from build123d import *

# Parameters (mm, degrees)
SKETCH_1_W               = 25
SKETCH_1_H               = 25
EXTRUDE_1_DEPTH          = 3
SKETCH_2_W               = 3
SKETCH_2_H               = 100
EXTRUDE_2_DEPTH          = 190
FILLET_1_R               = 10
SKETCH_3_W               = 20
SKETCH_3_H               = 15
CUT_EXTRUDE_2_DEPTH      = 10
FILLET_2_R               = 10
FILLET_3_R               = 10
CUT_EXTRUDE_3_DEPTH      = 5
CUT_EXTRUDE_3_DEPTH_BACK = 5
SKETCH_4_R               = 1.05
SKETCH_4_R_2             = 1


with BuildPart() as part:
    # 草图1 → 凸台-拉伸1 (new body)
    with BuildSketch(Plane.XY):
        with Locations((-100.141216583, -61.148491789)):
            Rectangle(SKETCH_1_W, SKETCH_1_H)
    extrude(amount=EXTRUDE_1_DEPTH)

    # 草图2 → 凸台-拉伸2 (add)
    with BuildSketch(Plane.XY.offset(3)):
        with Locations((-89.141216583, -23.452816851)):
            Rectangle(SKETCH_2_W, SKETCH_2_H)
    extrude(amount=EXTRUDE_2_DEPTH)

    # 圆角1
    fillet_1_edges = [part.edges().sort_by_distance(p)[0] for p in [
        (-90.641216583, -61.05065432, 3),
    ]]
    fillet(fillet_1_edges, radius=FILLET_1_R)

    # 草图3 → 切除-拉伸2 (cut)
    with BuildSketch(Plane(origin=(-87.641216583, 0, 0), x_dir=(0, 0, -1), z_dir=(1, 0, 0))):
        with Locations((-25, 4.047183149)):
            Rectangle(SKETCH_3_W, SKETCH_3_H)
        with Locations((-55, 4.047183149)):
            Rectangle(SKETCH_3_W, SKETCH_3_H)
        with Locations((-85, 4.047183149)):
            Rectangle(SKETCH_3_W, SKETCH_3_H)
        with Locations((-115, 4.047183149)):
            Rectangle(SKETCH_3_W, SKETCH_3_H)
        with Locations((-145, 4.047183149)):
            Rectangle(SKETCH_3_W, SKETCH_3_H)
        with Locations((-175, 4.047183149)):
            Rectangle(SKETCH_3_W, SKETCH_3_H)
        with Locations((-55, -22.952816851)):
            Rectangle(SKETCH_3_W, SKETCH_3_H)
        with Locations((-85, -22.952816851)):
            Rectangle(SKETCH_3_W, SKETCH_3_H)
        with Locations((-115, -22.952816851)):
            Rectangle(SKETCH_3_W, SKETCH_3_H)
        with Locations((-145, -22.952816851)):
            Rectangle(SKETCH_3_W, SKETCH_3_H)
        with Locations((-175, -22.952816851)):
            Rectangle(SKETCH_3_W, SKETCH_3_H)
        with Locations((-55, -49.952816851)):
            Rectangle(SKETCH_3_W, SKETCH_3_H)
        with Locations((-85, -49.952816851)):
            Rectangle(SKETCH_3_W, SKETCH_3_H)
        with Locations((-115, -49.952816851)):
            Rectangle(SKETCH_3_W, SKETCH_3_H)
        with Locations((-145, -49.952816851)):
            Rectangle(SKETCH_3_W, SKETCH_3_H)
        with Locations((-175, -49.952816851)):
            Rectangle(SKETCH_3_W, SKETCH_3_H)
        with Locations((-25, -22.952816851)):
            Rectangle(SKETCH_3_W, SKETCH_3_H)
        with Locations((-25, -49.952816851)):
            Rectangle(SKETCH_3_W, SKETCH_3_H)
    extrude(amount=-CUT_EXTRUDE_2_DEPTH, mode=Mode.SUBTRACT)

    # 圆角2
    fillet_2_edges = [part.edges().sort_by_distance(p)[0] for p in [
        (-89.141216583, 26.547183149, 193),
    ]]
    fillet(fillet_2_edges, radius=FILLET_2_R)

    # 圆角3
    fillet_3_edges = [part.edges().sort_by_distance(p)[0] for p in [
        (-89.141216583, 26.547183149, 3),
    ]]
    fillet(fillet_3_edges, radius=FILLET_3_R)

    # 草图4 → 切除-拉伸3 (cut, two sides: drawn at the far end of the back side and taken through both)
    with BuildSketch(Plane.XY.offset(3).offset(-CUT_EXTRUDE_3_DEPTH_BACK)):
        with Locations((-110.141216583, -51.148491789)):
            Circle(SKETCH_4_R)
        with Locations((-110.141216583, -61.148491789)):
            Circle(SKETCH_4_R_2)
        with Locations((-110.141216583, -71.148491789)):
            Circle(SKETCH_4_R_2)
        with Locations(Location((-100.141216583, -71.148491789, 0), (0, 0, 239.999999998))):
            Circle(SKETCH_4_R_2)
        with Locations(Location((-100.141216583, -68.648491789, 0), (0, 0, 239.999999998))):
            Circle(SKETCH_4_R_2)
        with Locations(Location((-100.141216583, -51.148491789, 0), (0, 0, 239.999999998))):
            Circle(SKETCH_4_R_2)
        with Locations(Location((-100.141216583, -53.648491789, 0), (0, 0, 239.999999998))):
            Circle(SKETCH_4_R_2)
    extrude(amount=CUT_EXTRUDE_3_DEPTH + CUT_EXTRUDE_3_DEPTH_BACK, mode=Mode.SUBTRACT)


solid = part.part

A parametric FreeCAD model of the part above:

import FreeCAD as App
import Part
import Sketcher

V = App.Vector
Q = App.Units.Quantity


def edges_at(feature, points):
    """Names of the edges that pass closest to the given points."""
    edges = feature.Shape.Edges
    near = lambda p: min(range(len(edges)), key=lambda i: edges[i].distToShape(Part.Vertex(*p))[0])
    return sorted({f"Edge{near(p) + 1}" for p in points})

doc = App.newDocument("Part")
body = doc.addObject("PartDesign::Body", "Body")

sketch1 = body.newObject("Sketcher::SketchObject", "Sketch")
sketch1.AttachmentSupport = (doc.getObject("XY_Plane"), [""])
sketch1.MapMode = "FlatFace"
sketch1.addGeometry([
    Part.LineSegment(V(-113, -49, 0), V(-113, -74, 0)),
    Part.LineSegment(V(-113, -74, 0), V(-88, -74, 0)),
    Part.LineSegment(V(-88, -74, 0), V(-88, -49, 0)),
    Part.LineSegment(V(-88, -49, 0), V(-113, -49, 0)),
], False)
sketch1.addConstraint([
    Sketcher.Constraint("Coincident", 0, 2, 1, 1),
    Sketcher.Constraint("Coincident", 1, 2, 2, 1),
    Sketcher.Constraint("Coincident", 2, 2, 3, 1),
    Sketcher.Constraint("Coincident", 3, 2, 0, 1),
    Sketcher.Constraint("Vertical", 0),
    Sketcher.Constraint("Horizontal", 1),
    Sketcher.Constraint("Vertical", 2),
    Sketcher.Constraint("Horizontal", 3),
    Sketcher.Constraint("Equal", 3, 0),
    Sketcher.Constraint("DistanceX", 1, 1, 1, 2, Q("25 mm")),
    Sketcher.Constraint("DistanceY", 0, 2, -1, 1, Q("73.648492 mm")),
    Sketcher.Constraint("DistanceX", 0, 2, -1, 1, Q("112.641217 mm")),
])
pad1 = body.newObject("PartDesign::Pad", "Pad")
pad1.Profile = sketch1
pad1.Length = 3

sketch2 = body.newObject("Sketcher::SketchObject", "Sketch001")
sketch2.AttachmentSupport = (doc.getObject("XY_Plane"), [""])
sketch2.MapMode = "FlatFace"
sketch2.AttachmentOffset = App.Placement(V(0, 0, 3), App.Rotation())
sketch2.addGeometry([
    Part.LineSegment(V(-90.6, 26.5, 0), V(-90.6, -73.5, 0)),
    Part.LineSegment(V(-90.6, -73.5, 0), V(-87.6, -73.5, 0)),
    Part.LineSegment(V(-87.6, -73.5, 0), V(-87.6, 26.5, 0)),
    Part.LineSegment(V(-87.6, 26.5, 0), V(-90.6, 26.5, 0)),
], False)
sketch2.addConstraint([
    Sketcher.Constraint("Coincident", 0, 2, 1, 1),
    Sketcher.Constraint("Coincident", 1, 2, 2, 1),
    Sketcher.Constraint("Coincident", 2, 2, 3, 1),
    Sketcher.Constraint("Coincident", 3, 2, 0, 1),
    Sketcher.Constraint("Vertical", 0),
    Sketcher.Constraint("Horizontal", 1),
    Sketcher.Constraint("Vertical", 2),
    Sketcher.Constraint("Horizontal", 3),
    Sketcher.Constraint("DistanceX", 1, 1, 1, 2, Q("3 mm")),
    Sketcher.Constraint("DistanceY", 0, 2, 0, 1, Q("100 mm")),
    Sketcher.Constraint("DistanceX", 0, 2, -1, 1, Q("90.641217 mm")),
    Sketcher.Constraint("DistanceY", 0, 2, -1, 1, Q("73.452817 mm")),
])
pad2 = body.newObject("PartDesign::Pad", "Pad001")
pad2.Profile = sketch2
pad2.Length = 190
doc.recompute()

fillet = body.newObject("PartDesign::Fillet", "Fillet")
fillet.Base = (pad2, edges_at(pad2, [(-90.641, -61.051, 3)]))
fillet.Radius = 10

sketch3 = body.newObject("Sketcher::SketchObject", "Sketch002")
sketch3.AttachmentSupport = (doc.getObject("YZ_Plane"), [""])
sketch3.MapMode = "FlatFace"
sketch3.AttachmentOffset = App.Placement(V(0, 0, -87.641217), App.Rotation())
sketch3.addGeometry([
    Part.LineSegment(V(12, 35, 0), V(-3, 35, 0)),
    Part.LineSegment(V(-3, 35, 0), V(-3, 15, 0)),
    Part.LineSegment(V(-3, 15, 0), V(12, 15, 0)),
    Part.LineSegment(V(12, 15, 0), V(12, 35, 0)),
    Part.LineSegment(V(12, 65, 0), V(-3, 65, 0)),
    Part.LineSegment(V(-3, 65, 0), V(-3, 45, 0)),
    Part.LineSegment(V(-3, 45, 0), V(12, 45, 0)),
    Part.LineSegment(V(12, 45, 0), V(12, 65, 0)),
    Part.LineSegment(V(12, 95, 0), V(-3, 95, 0)),
    Part.LineSegment(V(-3, 95, 0), V(-3, 75, 0)),
    Part.LineSegment(V(-3, 75, 0), V(12, 75, 0)),
    Part.LineSegment(V(12, 75, 0), V(12, 95, 0)),
    Part.LineSegment(V(12, 125, 0), V(-3, 125, 0)),
    Part.LineSegment(V(-3, 125, 0), V(-3, 105, 0)),
    Part.LineSegment(V(-3, 105, 0), V(12, 105, 0)),
    Part.LineSegment(V(12, 105, 0), V(12, 125, 0)),
    Part.LineSegment(V(12, 155, 0), V(-3, 155, 0)),
    Part.LineSegment(V(-3, 155, 0), V(-3, 135, 0)),
    Part.LineSegment(V(-3, 135, 0), V(12, 135, 0)),
    Part.LineSegment(V(12, 135, 0), V(12, 155, 0)),
    Part.LineSegment(V(12, 185, 0), V(-3, 185, 0)),
    Part.LineSegment(V(-3, 185, 0), V(-3, 165, 0)),
    Part.LineSegment(V(-3, 165, 0), V(12, 165, 0)),
    Part.LineSegment(V(12, 165, 0), V(12, 185, 0)),
    Part.LineSegment(V(-15, 65, 0), V(-30, 65, 0)),
    Part.LineSegment(V(-30, 65, 0), V(-30, 45, 0)),
    Part.LineSegment(V(-30, 45, 0), V(-15, 45, 0)),
    Part.LineSegment(V(-15, 45, 0), V(-15, 65, 0)),
    Part.LineSegment(V(-15, 95, 0), V(-30, 95, 0)),
    Part.LineSegment(V(-30, 95, 0), V(-30, 75, 0)),
    Part.LineSegment(V(-30, 75, 0), V(-15, 75, 0)),
    Part.LineSegment(V(-15, 75, 0), V(-15, 95, 0)),
    Part.LineSegment(V(-15, 125, 0), V(-30, 125, 0)),
    Part.LineSegment(V(-30, 125, 0), V(-30, 105, 0)),
    Part.LineSegment(V(-30, 105, 0), V(-15, 105, 0)),
    Part.LineSegment(V(-15, 105, 0), V(-15, 125, 0)),
    Part.LineSegment(V(-15, 155, 0), V(-30, 155, 0)),
    Part.LineSegment(V(-30, 155, 0), V(-30, 135, 0)),
    Part.LineSegment(V(-30, 135, 0), V(-15, 135, 0)),
    Part.LineSegment(V(-15, 135, 0), V(-15, 155, 0)),
    Part.LineSegment(V(-15, 185, 0), V(-30, 185, 0)),
    Part.LineSegment(V(-30, 185, 0), V(-30, 165, 0)),
    Part.LineSegment(V(-30, 165, 0), V(-15, 165, 0)),
    Part.LineSegment(V(-15, 165, 0), V(-15, 185, 0)),
    Part.LineSegment(V(-42, 65, 0), V(-57, 65, 0)),
    Part.LineSegment(V(-57, 65, 0), V(-57, 45, 0)),
    Part.LineSegment(V(-57, 45, 0), V(-42, 45, 0)),
    Part.LineSegment(V(-42, 45, 0), V(-42, 65, 0)),
    Part.LineSegment(V(-42, 95, 0), V(-57, 95, 0)),
    Part.LineSegment(V(-57, 95, 0), V(-57, 75, 0)),
    Part.LineSegment(V(-57, 75, 0), V(-42, 75, 0)),
    Part.LineSegment(V(-42, 75, 0), V(-42, 95, 0)),
    Part.LineSegment(V(-42, 125, 0), V(-57, 125, 0)),
    Part.LineSegment(V(-57, 125, 0), V(-57, 105, 0)),
    Part.LineSegment(V(-57, 105, 0), V(-42, 105, 0)),
    Part.LineSegment(V(-42, 105, 0), V(-42, 125, 0)),
    Part.LineSegment(V(-42, 155, 0), V(-57, 155, 0)),
    Part.LineSegment(V(-57, 155, 0), V(-57, 135, 0)),
    Part.LineSegment(V(-57, 135, 0), V(-42, 135, 0)),
    Part.LineSegment(V(-42, 135, 0), V(-42, 155, 0)),
    Part.LineSegment(V(-42, 185, 0), V(-57, 185, 0)),
    Part.LineSegment(V(-57, 185, 0), V(-57, 165, 0)),
    Part.LineSegment(V(-57, 165, 0), V(-42, 165, 0)),
    Part.LineSegment(V(-42, 165, 0), V(-42, 185, 0)),
    Part.LineSegment(V(-15, 35, 0), V(-30, 35, 0)),
    Part.LineSegment(V(-30, 35, 0), V(-30, 15, 0)),
    Part.LineSegment(V(-30, 15, 0), V(-15, 15, 0)),
    Part.LineSegment(V(-15, 15, 0), V(-15, 35, 0)),
    Part.LineSegment(V(-42, 35, 0), V(-57, 35, 0)),
    Part.LineSegment(V(-57, 35, 0), V(-57, 15, 0)),
    Part.LineSegment(V(-57, 15, 0), V(-42, 15, 0)),
    Part.LineSegment(V(-42, 15, 0), V(-42, 35, 0)),
], False)
sketch3.addConstraint([
    Sketcher.Constraint("Coincident", 0, 2, 1, 1),
    Sketcher.Constraint("Coincident", 1, 2, 2, 1),
    Sketcher.Constraint("Coincident", 2, 2, 3, 1),
    Sketcher.Constraint("Coincident", 3, 2, 0, 1),
    Sketcher.Constraint("Coincident", 4, 2, 5, 1),
    Sketcher.Constraint("Coincident", 5, 2, 6, 1),
    Sketcher.Constraint("Coincident", 6, 2, 7, 1),
    Sketcher.Constraint("Coincident", 7, 2, 4, 1),
    Sketcher.Constraint("Coincident", 8, 2, 9, 1),
    Sketcher.Constraint("Coincident", 9, 2, 10, 1),
    Sketcher.Constraint("Coincident", 10, 2, 11, 1),
    Sketcher.Constraint("Coincident", 11, 2, 8, 1),
    Sketcher.Constraint("Coincident", 12, 2, 13, 1),
    Sketcher.Constraint("Coincident", 13, 2, 14, 1),
    Sketcher.Constraint("Coincident", 14, 2, 15, 1),
    Sketcher.Constraint("Coincident", 15, 2, 12, 1),
    Sketcher.Constraint("Coincident", 16, 2, 17, 1),
    Sketcher.Constraint("Coincident", 17, 2, 18, 1),
    Sketcher.Constraint("Coincident", 18, 2, 19, 1),
    Sketcher.Constraint("Coincident", 19, 2, 16, 1),
    Sketcher.Constraint("Coincident", 20, 2, 21, 1),
    Sketcher.Constraint("Coincident", 21, 2, 22, 1),
    Sketcher.Constraint("Coincident", 22, 2, 23, 1),
    Sketcher.Constraint("Coincident", 23, 2, 20, 1),
    Sketcher.Constraint("Coincident", 24, 2, 25, 1),
    Sketcher.Constraint("Coincident", 25, 2, 26, 1),
    Sketcher.Constraint("Coincident", 26, 2, 27, 1),
    Sketcher.Constraint("Coincident", 27, 2, 24, 1),
    Sketcher.Constraint("Coincident", 28, 2, 29, 1),
    Sketcher.Constraint("Coincident", 29, 2, 30, 1),
    Sketcher.Constraint("Coincident", 30, 2, 31, 1),
    Sketcher.Constraint("Coincident", 31, 2, 28, 1),
    Sketcher.Constraint("Coincident", 32, 2, 33, 1),
    Sketcher.Constraint("Coincident", 33, 2, 34, 1),
    Sketcher.Constraint("Coincident", 34, 2, 35, 1),
    Sketcher.Constraint("Coincident", 35, 2, 32, 1),
    Sketcher.Constraint("Coincident", 36, 2, 37, 1),
    Sketcher.Constraint("Coincident", 37, 2, 38, 1),
    Sketcher.Constraint("Coincident", 38, 2, 39, 1),
    Sketcher.Constraint("Coincident", 39, 2, 36, 1),
    Sketcher.Constraint("Coincident", 40, 2, 41, 1),
    Sketcher.Constraint("Coincident", 41, 2, 42, 1),
    Sketcher.Constraint("Coincident", 42, 2, 43, 1),
    Sketcher.Constraint("Coincident", 43, 2, 40, 1),
    Sketcher.Constraint("Coincident", 44, 2, 45, 1),
    Sketcher.Constraint("Coincident", 45, 2, 46, 1),
    Sketcher.Constraint("Coincident", 46, 2, 47, 1),
    Sketcher.Constraint("Coincident", 47, 2, 44, 1),
    Sketcher.Constraint("Coincident", 48, 2, 49, 1),
    Sketcher.Constraint("Coincident", 49, 2, 50, 1),
    Sketcher.Constraint("Coincident", 50, 2, 51, 1),
    Sketcher.Constraint("Coincident", 51, 2, 48, 1),
    Sketcher.Constraint("Coincident", 52, 2, 53, 1),
    Sketcher.Constraint("Coincident", 53, 2, 54, 1),
    Sketcher.Constraint("Coincident", 54, 2, 55, 1),
    Sketcher.Constraint("Coincident", 55, 2, 52, 1),
    Sketcher.Constraint("Coincident", 56, 2, 57, 1),
    Sketcher.Constraint("Coincident", 57, 2, 58, 1),
    Sketcher.Constraint("Coincident", 58, 2, 59, 1),
    Sketcher.Constraint("Coincident", 59, 2, 56, 1),
    Sketcher.Constraint("Coincident", 60, 2, 61, 1),
    Sketcher.Constraint("Coincident", 61, 2, 62, 1),
    Sketcher.Constraint("Coincident", 62, 2, 63, 1),
    Sketcher.Constraint("Coincident", 63, 2, 60, 1),
    Sketcher.Constraint("Coincident", 64, 2, 65, 1),
    Sketcher.Constraint("Coincident", 65, 2, 66, 1),
    Sketcher.Constraint("Coincident", 66, 2, 67, 1),
    Sketcher.Constraint("Coincident", 67, 2, 64, 1),
    Sketcher.Constraint("Coincident", 68, 2, 69, 1),
    Sketcher.Constraint("Coincident", 69, 2, 70, 1),
    Sketcher.Constraint("Coincident", 70, 2, 71, 1),
    Sketcher.Constraint("Coincident", 71, 2, 68, 1),
    Sketcher.Constraint("Horizontal", 0),
    Sketcher.Constraint("Vertical", 1),
    Sketcher.Constraint("Horizontal", 2),
    Sketcher.Constraint("Vertical", 3),
    Sketcher.Constraint("Horizontal", 4),
    Sketcher.Constraint("Vertical", 5),
    Sketcher.Constraint("Horizontal", 6),
    Sketcher.Constraint("Vertical", 7),
    Sketcher.Constraint("Horizontal", 8),
    Sketcher.Constraint("Vertical", 9),
    Sketcher.Constraint("Horizontal", 10),
    Sketcher.Constraint("Vertical", 11),
    Sketcher.Constraint("Horizontal", 12),
    Sketcher.Constraint("Vertical", 13),
    Sketcher.Constraint("Horizontal", 14),
    Sketcher.Constraint("Vertical", 15),
    Sketcher.Constraint("Horizontal", 16),
    Sketcher.Constraint("Vertical", 17),
    Sketcher.Constraint("Horizontal", 18),
    Sketcher.Constraint("Vertical", 19),
    Sketcher.Constraint("Horizontal", 20),
    Sketcher.Constraint("Vertical", 21),
    Sketcher.Constraint("Horizontal", 22),
    Sketcher.Constraint("Vertical", 23),
    Sketcher.Constraint("Horizontal", 24),
    Sketcher.Constraint("Vertical", 25),
    Sketcher.Constraint("Horizontal", 26),
    Sketcher.Constraint("Vertical", 27),
    Sketcher.Constraint("Horizontal", 28),
    Sketcher.Constraint("Vertical", 29),
    Sketcher.Constraint("Horizontal", 30),
    Sketcher.Constraint("Vertical", 31),
    Sketcher.Constraint("Horizontal", 32),
    Sketcher.Constraint("Vertical", 33),
    Sketcher.Constraint("Horizontal", 34),
    Sketcher.Constraint("Vertical", 35),
    Sketcher.Constraint("Horizontal", 36),
    Sketcher.Constraint("Vertical", 37),
    Sketcher.Constraint("Horizontal", 38),
    Sketcher.Constraint("Vertical", 39),
    Sketcher.Constraint("Horizontal", 40),
    Sketcher.Constraint("Vertical", 41),
    Sketcher.Constraint("Horizontal", 42),
    Sketcher.Constraint("Vertical", 43),
    Sketcher.Constraint("Horizontal", 44),
    Sketcher.Constraint("Vertical", 45),
    Sketcher.Constraint("Horizontal", 46),
    Sketcher.Constraint("Vertical", 47),
    Sketcher.Constraint("Horizontal", 48),
    Sketcher.Constraint("Vertical", 49),
    Sketcher.Constraint("Horizontal", 50),
    Sketcher.Constraint("Vertical", 51),
    Sketcher.Constraint("Horizontal", 52),
    Sketcher.Constraint("Vertical", 53),
    Sketcher.Constraint("Horizontal", 54),
    Sketcher.Constraint("Vertical", 55),
    Sketcher.Constraint("Horizontal", 56),
    Sketcher.Constraint("Vertical", 57),
    Sketcher.Constraint("Horizontal", 58),
    Sketcher.Constraint("Vertical", 59),
    Sketcher.Constraint("Horizontal", 60),
    Sketcher.Constraint("Vertical", 61),
    Sketcher.Constraint("Horizontal", 62),
    Sketcher.Constraint("Vertical", 63),
    Sketcher.Constraint("Horizontal", 64),
    Sketcher.Constraint("Vertical", 65),
    Sketcher.Constraint("Horizontal", 66),
    Sketcher.Constraint("Vertical", 67),
    Sketcher.Constraint("Horizontal", 68),
    Sketcher.Constraint("Vertical", 69),
    Sketcher.Constraint("Horizontal", 70),
    Sketcher.Constraint("Vertical", 71),
    Sketcher.Constraint("Horizontal", 7, 2, 24, 2),
    Sketcher.Constraint("Horizontal", 6, 2, 25, 2),
    Sketcher.Constraint("Horizontal", 11, 2, 28, 2),
    Sketcher.Constraint("Horizontal", 10, 2, 29, 2),
    Sketcher.Constraint("Horizontal", 15, 2, 32, 2),
    Sketcher.Constraint("Horizontal", 14, 2, 33, 2),
    Sketcher.Constraint("Horizontal", 19, 2, 36, 2),
    Sketcher.Constraint("Horizontal", 18, 2, 37, 2),
    Sketcher.Constraint("Horizontal", 23, 2, 40, 2),
    Sketcher.Constraint("Horizontal", 22, 2, 41, 2),
    Sketcher.Constraint("Horizontal", 27, 2, 44, 2),
    Sketcher.Constraint("Horizontal", 26, 2, 45, 2),
    Sketcher.Constraint("Horizontal", 31, 2, 48, 2),
    Sketcher.Constraint("Horizontal", 30, 2, 49, 2),
    Sketcher.Constraint("Horizontal", 35, 2, 52, 2),
    Sketcher.Constraint("Horizontal", 34, 2, 53, 2),
    Sketcher.Constraint("Horizontal", 39, 2, 56, 2),
    Sketcher.Constraint("Horizontal", 38, 2, 57, 2),
    Sketcher.Constraint("Horizontal", 43, 2, 60, 2),
    Sketcher.Constraint("Horizontal", 42, 2, 61, 2),
    Sketcher.Constraint("Horizontal", 3, 2, 64, 2),
    Sketcher.Constraint("Horizontal", 2, 2, 65, 2),
    Sketcher.Constraint("Horizontal", 67, 2, 68, 2),
    Sketcher.Constraint("Horizontal", 66, 2, 69, 2),
    Sketcher.Constraint("Vertical", 1, 2, 4, 2),
    Sketcher.Constraint("Vertical", 3, 2, 6, 2),
    Sketcher.Constraint("Vertical", 5, 2, 8, 2),
    Sketcher.Constraint("Vertical", 7, 2, 10, 2),
    Sketcher.Constraint("Vertical", 9, 2, 12, 2),
    Sketcher.Constraint("Vertical", 11, 2, 14, 2),
    Sketcher.Constraint("Vertical", 13, 2, 16, 2),
    Sketcher.Constraint("Vertical", 15, 2, 18, 2),
    Sketcher.Constraint("Vertical", 17, 2, 20, 2),
    Sketcher.Constraint("Vertical", 19, 2, 22, 2),
    Sketcher.Constraint("Vertical", 25, 2, 28, 2),
    Sketcher.Constraint("Vertical", 27, 2, 30, 2),
    Sketcher.Constraint("Vertical", 29, 2, 32, 2),
    Sketcher.Constraint("Vertical", 31, 2, 34, 2),
    Sketcher.Constraint("Vertical", 33, 2, 36, 2),
    Sketcher.Constraint("Vertical", 35, 2, 38, 2),
    Sketcher.Constraint("Vertical", 37, 2, 40, 2),
    Sketcher.Constraint("Vertical", 39, 2, 42, 2),
    Sketcher.Constraint("Vertical", 45, 2, 48, 2),
    Sketcher.Constraint("Vertical", 47, 2, 50, 2),
    Sketcher.Constraint("Vertical", 49, 2, 52, 2),
    Sketcher.Constraint("Vertical", 51, 2, 54, 2),
    Sketcher.Constraint("Vertical", 53, 2, 56, 2),
    Sketcher.Constraint("Vertical", 55, 2, 58, 2),
    Sketcher.Constraint("Vertical", 57, 2, 60, 2),
    Sketcher.Constraint("Vertical", 59, 2, 62, 2),
    Sketcher.Constraint("Vertical", 41, 2, 64, 2),
    Sketcher.Constraint("Vertical", 43, 2, 66, 2),
    Sketcher.Constraint("Vertical", 61, 2, 68, 2),
    Sketcher.Constraint("Vertical", 63, 2, 70, 2),
    Sketcher.Constraint("Equal", 22, 24),
    Sketcher.Constraint("Equal", 42, 44),
    Sketcher.Constraint("Equal", 3, 5),
    Sketcher.Constraint("Equal", 7, 9),
    Sketcher.Constraint("Equal", 11, 13),
    Sketcher.Constraint("Equal", 15, 17),
    Sketcher.Constraint("Equal", 19, 21),
    Sketcher.Constraint("DistanceX", 0, 2, 0, 1, Q("15 mm")),
    Sketcher.Constraint("DistanceY", 1, 2, 1, 1, Q("20 mm")),
    Sketcher.Constraint("DistanceY", -1, 1, 0, 2, Q("35 mm")),
    Sketcher.Constraint("DistanceY", -1, 1, 4, 2, Q("65 mm")),
    Sketcher.Constraint("DistanceY", -1, 1, 8, 2, Q("95 mm")),
    Sketcher.Constraint("DistanceY", -1, 1, 12, 2, Q("125 mm")),
    Sketcher.Constraint("DistanceY", -1, 1, 16, 2, Q("155 mm")),
    Sketcher.Constraint("DistanceY", -1, 1, 20, 2, Q("185 mm")),
    Sketcher.Constraint("DistanceX", 0, 2, -1, 1, Q("3.452817 mm")),
    Sketcher.Constraint("DistanceX", 24, 2, -1, 1, Q("30.452817 mm")),
    Sketcher.Constraint("DistanceX", 44, 2, -1, 1, Q("57.452817 mm")),
])
pocket1 = body.newObject("PartDesign::Pocket", "Pocket")
pocket1.Profile = sketch3
pocket1.Length = 10
doc.recompute()

fillet2 = body.newObject("PartDesign::Fillet", "Fillet001")
fillet2.Base = (pocket1, edges_at(pocket1, [(-89.141, 26.547, 193)]))
fillet2.Radius = 10
doc.recompute()

fillet3 = body.newObject("PartDesign::Fillet", "Fillet002")
fillet3.Base = (fillet2, edges_at(fillet2, [(-89.141, 26.547, 3)]))
fillet3.Radius = 10

sketch4 = body.newObject("Sketcher::SketchObject", "Sketch003")
sketch4.AttachmentSupport = (doc.getObject("XY_Plane"), [""])
sketch4.MapMode = "FlatFace"
sketch4.AttachmentOffset = App.Placement(V(0, 0, 3), App.Rotation())
sketch4.addGeometry([
    Part.Circle(V(-110.1, -51.1, 0), V(0, 0, 1), 1.1),
    Part.Circle(V(-110.1, -61.1, 0), V(0, 0, 1), 1),
    Part.Circle(V(-110.1, -71.1, 0), V(0, 0, 1), 1),
    Part.Circle(V(-100.1, -71.1, 0), V(0, 0, 1), 1),
    Part.Circle(V(-100.1, -68.6, 0), V(0, 0, 1), 1),
    Part.Circle(V(-100.1, -51.1, 0), V(0, 0, 1), 1),
    Part.Circle(V(-100.1, -53.6, 0), V(0, 0, 1), 1),
], False)
sketch4.addConstraint([
    Sketcher.Constraint("Equal", 1, 2),
    Sketcher.Constraint("Equal", 2, 3),
    Sketcher.Constraint("Equal", 3, 4),
    Sketcher.Constraint("Equal", 4, 5),
    Sketcher.Constraint("Equal", 5, 6),
    Sketcher.Constraint("Horizontal", 2, 3, 3, 3),
    Sketcher.Constraint("Horizontal", 0, 3, 5, 3),
    Sketcher.Constraint("Vertical", 0, 3, 1, 3),
    Sketcher.Constraint("Vertical", 1, 3, 2, 3),
    Sketcher.Constraint("Vertical", 3, 3, 4, 3),
    Sketcher.Constraint("Vertical", 4, 3, 5, 3),
    Sketcher.Constraint("Vertical", 5, 3, 6, 3),
    Sketcher.Constraint("Diameter", 1, Q("2 mm")),
    Sketcher.Constraint("Diameter", 0, Q("2.1 mm")),
    Sketcher.Constraint("DistanceY", 1, 3, 0, 3, Q("10 mm")),
    Sketcher.Constraint("DistanceY", 2, 3, 1, 3, Q("10 mm")),
    Sketcher.Constraint("DistanceX", 2, 3, 3, 3, Q("10 mm")),
    Sketcher.Constraint("DistanceY", 4, 3, 6, 3, Q("15 mm")),
    Sketcher.Constraint("DistanceY", 3, 3, 4, 3, Q("2.5 mm")),
    Sketcher.Constraint("DistanceY", 0, 3, -1, 1, Q("51.148492 mm")),
    Sketcher.Constraint("DistanceX", 0, 3, -1, 1, Q("110.141217 mm")),
])
pocket2 = body.newObject("PartDesign::Pocket", "Pocket001")
pocket2.Profile = sketch4
pocket2.Type = "ThroughAll"
pocket2.Midplane = True

doc.recompute()
